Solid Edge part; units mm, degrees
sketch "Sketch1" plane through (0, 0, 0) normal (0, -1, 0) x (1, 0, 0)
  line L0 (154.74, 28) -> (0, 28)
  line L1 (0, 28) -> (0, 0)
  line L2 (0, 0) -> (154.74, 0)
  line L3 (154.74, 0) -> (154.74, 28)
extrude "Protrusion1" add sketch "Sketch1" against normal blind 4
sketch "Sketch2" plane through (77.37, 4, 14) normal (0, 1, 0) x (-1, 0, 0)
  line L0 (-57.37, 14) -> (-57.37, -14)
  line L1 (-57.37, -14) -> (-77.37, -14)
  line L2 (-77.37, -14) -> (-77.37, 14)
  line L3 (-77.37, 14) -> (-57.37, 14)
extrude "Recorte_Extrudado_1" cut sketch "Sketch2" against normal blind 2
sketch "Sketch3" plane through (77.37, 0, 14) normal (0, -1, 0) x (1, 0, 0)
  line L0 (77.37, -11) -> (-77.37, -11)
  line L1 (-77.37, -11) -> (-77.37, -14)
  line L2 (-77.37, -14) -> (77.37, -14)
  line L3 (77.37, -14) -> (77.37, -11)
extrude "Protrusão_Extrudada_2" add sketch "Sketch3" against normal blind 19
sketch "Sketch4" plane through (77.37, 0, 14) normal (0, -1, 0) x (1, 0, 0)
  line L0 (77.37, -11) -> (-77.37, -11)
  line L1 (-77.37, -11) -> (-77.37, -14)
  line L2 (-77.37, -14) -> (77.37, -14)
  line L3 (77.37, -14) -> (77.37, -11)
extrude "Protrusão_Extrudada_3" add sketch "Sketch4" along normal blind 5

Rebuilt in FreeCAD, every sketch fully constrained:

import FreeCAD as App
import Part
import Sketcher
from FreeCAD import Vector


def add_polygon(sketch, points):
    """Adds a closed chain of lines whose ends are joined by coincident constraints."""
    first, n = sketch.GeometryCount, len(points)
    for a, b in zip(points, points[1:] + points[:1]):
        sketch.addGeometry(Part.LineSegment(App.Vector(*a, 0), App.Vector(*b, 0)), False)
    for i in range(n):
        sketch.addConstraint(Sketcher.Constraint("Coincident", first + i, 2, first + (i + 1) % n, 1))

doc = App.newDocument("Part")
params = doc.addObject("Spreadsheet::Sheet", "Params")
for row, (alias, value) in enumerate([
    ("sketch1_height", "28 mm"),
    ("sketch1_width", "154.74 mm"),
    ("pad1_length", "4 mm"),
    ("sketch2_width", "20 mm"),
    ("sketch2_height", "28 mm"),
    ("pocket1_length", "2 mm"),
    ("sketch3_height", "3 mm"),
    ("sketch3_width", "154.74 mm"),
    ("pad2_length", "19 mm"),
    ("sketch4_height", "3 mm"),
    ("sketch4_width", "154.74 mm"),
    ("pad3_length", "5 mm"),
], start=1):
    params.set(f"A{row}", alias)
    params.set(f"B{row}", "=" + value)
    params.setAlias(f"B{row}", alias)

body = doc.addObject("PartDesign::Body", "Body")

# Sketch on XZ plane
sketch1 = body.newObject("Sketcher::SketchObject", "Sketch")
sketch1.AttachmentSupport = (doc.getObject("XZ_Plane"), [""])
sketch1.MapMode = "FlatFace"
add_polygon(sketch1, [(154.74, 0), (154.74, 28), (0, 28), (0, 0)])  # lines 0-3
sketch1.addConstraint([
    Sketcher.Constraint("Vertical", 0),
    Sketcher.Constraint("Horizontal", 1),
    Sketcher.Constraint("Vertical", 2),
    Sketcher.Constraint("Horizontal", 3),
    Sketcher.Constraint("Coincident", 2, 2, -1, 1),
    Sketcher.Constraint("DistanceY", 0, 1, 0, 2, 28.0),
    Sketcher.Constraint("DistanceX", 1, 2, 1, 1, 154.74),
])
sketch1.setExpression("Constraints[9]", "Params.sketch1_height")
sketch1.setExpression("Constraints[10]", "Params.sketch1_width")
pad1 = body.newObject("PartDesign::Pad", "Pad")
pad1.Profile = sketch1
pad1.setExpression("Length", "Params.pad1_length")
pad1.Reversed = True

# Sketch on XZ plane
sketch2 = body.newObject("Sketcher::SketchObject", "Sketch001")
sketch2.AttachmentSupport = (doc.getObject("XZ_Plane"), [""])
sketch2.MapMode = "FlatFace"
sketch2.AttachmentOffset = App.Placement(Vector(0, 0, -4), App.Rotation())
add_polygon(sketch2, [(134.74, 0), (134.74, 28), (154.74, 28), (154.74, 0)])  # lines 0-3
sketch2.addConstraint([
    Sketcher.Constraint("Vertical", 0),
    Sketcher.Constraint("Horizontal", 1),
    Sketcher.Constraint("Vertical", 2),
    Sketcher.Constraint("Horizontal", 3),
    Sketcher.Constraint("PointOnObject", 2, 2, -1),
    Sketcher.Constraint("DistanceX", 1, 1, 1, 2, 20.0),
    Sketcher.Constraint("DistanceY", 0, 1, 0, 2, 28.0),
    Sketcher.Constraint("DistanceX", -1, 1, 0, 2, 134.74),
])
sketch2.setExpression("Constraints[9]", "Params.sketch2_width")
sketch2.setExpression("Constraints[10]", "Params.sketch2_height")
pocket1 = body.newObject("PartDesign::Pocket", "Pocket")
pocket1.Profile = sketch2
pocket1.setExpression("Length", "Params.pocket1_length")
pocket1.Reversed = True

# Sketch on XZ plane
sketch3 = body.newObject("Sketcher::SketchObject", "Sketch002")
sketch3.AttachmentSupport = (doc.getObject("XZ_Plane"), [""])
sketch3.MapMode = "FlatFace"
add_polygon(sketch3, [(154.74, 0), (154.74, 3), (0, 3), (0, 0)])  # lines 0-3
sketch3.addConstraint([
    Sketcher.Constraint("Vertical", 0),
    Sketcher.Constraint("Horizontal", 1),
    Sketcher.Constraint("Vertical", 2),
    Sketcher.Constraint("Horizontal", 3),
    Sketcher.Constraint("Coincident", 2, 2, -1, 1),
    Sketcher.Constraint("DistanceY", 0, 1, 0, 2, 3.0),
    Sketcher.Constraint("DistanceX", 1, 2, 1, 1, 154.74),
])
sketch3.setExpression("Constraints[9]", "Params.sketch3_height")
sketch3.setExpression("Constraints[10]", "Params.sketch3_width")
pad2 = body.newObject("PartDesign::Pad", "Pad001")
pad2.Profile = sketch3
pad2.setExpression("Length", "Params.pad2_length")
pad2.Reversed = True

# Sketch on XZ plane
sketch4 = body.newObject("Sketcher::SketchObject", "Sketch003")
sketch4.AttachmentSupport = (doc.getObject("XZ_Plane"), [""])
sketch4.MapMode = "FlatFace"
add_polygon(sketch4, [(154.74, 0), (154.74, 3), (0, 3), (0, 0)])  # lines 0-3
sketch4.addConstraint([
    Sketcher.Constraint("Vertical", 0),
    Sketcher.Constraint("Horizontal", 1),
    Sketcher.Constraint("Vertical", 2),
    Sketcher.Constraint("Horizontal", 3),
    Sketcher.Constraint("Coincident", 2, 2, -1, 1),
    Sketcher.Constraint("DistanceY", 0, 1, 0, 2, 3.0),
    Sketcher.Constraint("DistanceX", 1, 2, 1, 1, 154.74),
])
sketch4.setExpression("Constraints[9]", "Params.sketch4_height")
sketch4.setExpression("Constraints[10]", "Params.sketch4_width")
pad3 = body.newObject("PartDesign::Pad", "Pad002")
pad3.Profile = sketch4
pad3.setExpression("Length", "Params.pad3_length")

doc.recompute()
